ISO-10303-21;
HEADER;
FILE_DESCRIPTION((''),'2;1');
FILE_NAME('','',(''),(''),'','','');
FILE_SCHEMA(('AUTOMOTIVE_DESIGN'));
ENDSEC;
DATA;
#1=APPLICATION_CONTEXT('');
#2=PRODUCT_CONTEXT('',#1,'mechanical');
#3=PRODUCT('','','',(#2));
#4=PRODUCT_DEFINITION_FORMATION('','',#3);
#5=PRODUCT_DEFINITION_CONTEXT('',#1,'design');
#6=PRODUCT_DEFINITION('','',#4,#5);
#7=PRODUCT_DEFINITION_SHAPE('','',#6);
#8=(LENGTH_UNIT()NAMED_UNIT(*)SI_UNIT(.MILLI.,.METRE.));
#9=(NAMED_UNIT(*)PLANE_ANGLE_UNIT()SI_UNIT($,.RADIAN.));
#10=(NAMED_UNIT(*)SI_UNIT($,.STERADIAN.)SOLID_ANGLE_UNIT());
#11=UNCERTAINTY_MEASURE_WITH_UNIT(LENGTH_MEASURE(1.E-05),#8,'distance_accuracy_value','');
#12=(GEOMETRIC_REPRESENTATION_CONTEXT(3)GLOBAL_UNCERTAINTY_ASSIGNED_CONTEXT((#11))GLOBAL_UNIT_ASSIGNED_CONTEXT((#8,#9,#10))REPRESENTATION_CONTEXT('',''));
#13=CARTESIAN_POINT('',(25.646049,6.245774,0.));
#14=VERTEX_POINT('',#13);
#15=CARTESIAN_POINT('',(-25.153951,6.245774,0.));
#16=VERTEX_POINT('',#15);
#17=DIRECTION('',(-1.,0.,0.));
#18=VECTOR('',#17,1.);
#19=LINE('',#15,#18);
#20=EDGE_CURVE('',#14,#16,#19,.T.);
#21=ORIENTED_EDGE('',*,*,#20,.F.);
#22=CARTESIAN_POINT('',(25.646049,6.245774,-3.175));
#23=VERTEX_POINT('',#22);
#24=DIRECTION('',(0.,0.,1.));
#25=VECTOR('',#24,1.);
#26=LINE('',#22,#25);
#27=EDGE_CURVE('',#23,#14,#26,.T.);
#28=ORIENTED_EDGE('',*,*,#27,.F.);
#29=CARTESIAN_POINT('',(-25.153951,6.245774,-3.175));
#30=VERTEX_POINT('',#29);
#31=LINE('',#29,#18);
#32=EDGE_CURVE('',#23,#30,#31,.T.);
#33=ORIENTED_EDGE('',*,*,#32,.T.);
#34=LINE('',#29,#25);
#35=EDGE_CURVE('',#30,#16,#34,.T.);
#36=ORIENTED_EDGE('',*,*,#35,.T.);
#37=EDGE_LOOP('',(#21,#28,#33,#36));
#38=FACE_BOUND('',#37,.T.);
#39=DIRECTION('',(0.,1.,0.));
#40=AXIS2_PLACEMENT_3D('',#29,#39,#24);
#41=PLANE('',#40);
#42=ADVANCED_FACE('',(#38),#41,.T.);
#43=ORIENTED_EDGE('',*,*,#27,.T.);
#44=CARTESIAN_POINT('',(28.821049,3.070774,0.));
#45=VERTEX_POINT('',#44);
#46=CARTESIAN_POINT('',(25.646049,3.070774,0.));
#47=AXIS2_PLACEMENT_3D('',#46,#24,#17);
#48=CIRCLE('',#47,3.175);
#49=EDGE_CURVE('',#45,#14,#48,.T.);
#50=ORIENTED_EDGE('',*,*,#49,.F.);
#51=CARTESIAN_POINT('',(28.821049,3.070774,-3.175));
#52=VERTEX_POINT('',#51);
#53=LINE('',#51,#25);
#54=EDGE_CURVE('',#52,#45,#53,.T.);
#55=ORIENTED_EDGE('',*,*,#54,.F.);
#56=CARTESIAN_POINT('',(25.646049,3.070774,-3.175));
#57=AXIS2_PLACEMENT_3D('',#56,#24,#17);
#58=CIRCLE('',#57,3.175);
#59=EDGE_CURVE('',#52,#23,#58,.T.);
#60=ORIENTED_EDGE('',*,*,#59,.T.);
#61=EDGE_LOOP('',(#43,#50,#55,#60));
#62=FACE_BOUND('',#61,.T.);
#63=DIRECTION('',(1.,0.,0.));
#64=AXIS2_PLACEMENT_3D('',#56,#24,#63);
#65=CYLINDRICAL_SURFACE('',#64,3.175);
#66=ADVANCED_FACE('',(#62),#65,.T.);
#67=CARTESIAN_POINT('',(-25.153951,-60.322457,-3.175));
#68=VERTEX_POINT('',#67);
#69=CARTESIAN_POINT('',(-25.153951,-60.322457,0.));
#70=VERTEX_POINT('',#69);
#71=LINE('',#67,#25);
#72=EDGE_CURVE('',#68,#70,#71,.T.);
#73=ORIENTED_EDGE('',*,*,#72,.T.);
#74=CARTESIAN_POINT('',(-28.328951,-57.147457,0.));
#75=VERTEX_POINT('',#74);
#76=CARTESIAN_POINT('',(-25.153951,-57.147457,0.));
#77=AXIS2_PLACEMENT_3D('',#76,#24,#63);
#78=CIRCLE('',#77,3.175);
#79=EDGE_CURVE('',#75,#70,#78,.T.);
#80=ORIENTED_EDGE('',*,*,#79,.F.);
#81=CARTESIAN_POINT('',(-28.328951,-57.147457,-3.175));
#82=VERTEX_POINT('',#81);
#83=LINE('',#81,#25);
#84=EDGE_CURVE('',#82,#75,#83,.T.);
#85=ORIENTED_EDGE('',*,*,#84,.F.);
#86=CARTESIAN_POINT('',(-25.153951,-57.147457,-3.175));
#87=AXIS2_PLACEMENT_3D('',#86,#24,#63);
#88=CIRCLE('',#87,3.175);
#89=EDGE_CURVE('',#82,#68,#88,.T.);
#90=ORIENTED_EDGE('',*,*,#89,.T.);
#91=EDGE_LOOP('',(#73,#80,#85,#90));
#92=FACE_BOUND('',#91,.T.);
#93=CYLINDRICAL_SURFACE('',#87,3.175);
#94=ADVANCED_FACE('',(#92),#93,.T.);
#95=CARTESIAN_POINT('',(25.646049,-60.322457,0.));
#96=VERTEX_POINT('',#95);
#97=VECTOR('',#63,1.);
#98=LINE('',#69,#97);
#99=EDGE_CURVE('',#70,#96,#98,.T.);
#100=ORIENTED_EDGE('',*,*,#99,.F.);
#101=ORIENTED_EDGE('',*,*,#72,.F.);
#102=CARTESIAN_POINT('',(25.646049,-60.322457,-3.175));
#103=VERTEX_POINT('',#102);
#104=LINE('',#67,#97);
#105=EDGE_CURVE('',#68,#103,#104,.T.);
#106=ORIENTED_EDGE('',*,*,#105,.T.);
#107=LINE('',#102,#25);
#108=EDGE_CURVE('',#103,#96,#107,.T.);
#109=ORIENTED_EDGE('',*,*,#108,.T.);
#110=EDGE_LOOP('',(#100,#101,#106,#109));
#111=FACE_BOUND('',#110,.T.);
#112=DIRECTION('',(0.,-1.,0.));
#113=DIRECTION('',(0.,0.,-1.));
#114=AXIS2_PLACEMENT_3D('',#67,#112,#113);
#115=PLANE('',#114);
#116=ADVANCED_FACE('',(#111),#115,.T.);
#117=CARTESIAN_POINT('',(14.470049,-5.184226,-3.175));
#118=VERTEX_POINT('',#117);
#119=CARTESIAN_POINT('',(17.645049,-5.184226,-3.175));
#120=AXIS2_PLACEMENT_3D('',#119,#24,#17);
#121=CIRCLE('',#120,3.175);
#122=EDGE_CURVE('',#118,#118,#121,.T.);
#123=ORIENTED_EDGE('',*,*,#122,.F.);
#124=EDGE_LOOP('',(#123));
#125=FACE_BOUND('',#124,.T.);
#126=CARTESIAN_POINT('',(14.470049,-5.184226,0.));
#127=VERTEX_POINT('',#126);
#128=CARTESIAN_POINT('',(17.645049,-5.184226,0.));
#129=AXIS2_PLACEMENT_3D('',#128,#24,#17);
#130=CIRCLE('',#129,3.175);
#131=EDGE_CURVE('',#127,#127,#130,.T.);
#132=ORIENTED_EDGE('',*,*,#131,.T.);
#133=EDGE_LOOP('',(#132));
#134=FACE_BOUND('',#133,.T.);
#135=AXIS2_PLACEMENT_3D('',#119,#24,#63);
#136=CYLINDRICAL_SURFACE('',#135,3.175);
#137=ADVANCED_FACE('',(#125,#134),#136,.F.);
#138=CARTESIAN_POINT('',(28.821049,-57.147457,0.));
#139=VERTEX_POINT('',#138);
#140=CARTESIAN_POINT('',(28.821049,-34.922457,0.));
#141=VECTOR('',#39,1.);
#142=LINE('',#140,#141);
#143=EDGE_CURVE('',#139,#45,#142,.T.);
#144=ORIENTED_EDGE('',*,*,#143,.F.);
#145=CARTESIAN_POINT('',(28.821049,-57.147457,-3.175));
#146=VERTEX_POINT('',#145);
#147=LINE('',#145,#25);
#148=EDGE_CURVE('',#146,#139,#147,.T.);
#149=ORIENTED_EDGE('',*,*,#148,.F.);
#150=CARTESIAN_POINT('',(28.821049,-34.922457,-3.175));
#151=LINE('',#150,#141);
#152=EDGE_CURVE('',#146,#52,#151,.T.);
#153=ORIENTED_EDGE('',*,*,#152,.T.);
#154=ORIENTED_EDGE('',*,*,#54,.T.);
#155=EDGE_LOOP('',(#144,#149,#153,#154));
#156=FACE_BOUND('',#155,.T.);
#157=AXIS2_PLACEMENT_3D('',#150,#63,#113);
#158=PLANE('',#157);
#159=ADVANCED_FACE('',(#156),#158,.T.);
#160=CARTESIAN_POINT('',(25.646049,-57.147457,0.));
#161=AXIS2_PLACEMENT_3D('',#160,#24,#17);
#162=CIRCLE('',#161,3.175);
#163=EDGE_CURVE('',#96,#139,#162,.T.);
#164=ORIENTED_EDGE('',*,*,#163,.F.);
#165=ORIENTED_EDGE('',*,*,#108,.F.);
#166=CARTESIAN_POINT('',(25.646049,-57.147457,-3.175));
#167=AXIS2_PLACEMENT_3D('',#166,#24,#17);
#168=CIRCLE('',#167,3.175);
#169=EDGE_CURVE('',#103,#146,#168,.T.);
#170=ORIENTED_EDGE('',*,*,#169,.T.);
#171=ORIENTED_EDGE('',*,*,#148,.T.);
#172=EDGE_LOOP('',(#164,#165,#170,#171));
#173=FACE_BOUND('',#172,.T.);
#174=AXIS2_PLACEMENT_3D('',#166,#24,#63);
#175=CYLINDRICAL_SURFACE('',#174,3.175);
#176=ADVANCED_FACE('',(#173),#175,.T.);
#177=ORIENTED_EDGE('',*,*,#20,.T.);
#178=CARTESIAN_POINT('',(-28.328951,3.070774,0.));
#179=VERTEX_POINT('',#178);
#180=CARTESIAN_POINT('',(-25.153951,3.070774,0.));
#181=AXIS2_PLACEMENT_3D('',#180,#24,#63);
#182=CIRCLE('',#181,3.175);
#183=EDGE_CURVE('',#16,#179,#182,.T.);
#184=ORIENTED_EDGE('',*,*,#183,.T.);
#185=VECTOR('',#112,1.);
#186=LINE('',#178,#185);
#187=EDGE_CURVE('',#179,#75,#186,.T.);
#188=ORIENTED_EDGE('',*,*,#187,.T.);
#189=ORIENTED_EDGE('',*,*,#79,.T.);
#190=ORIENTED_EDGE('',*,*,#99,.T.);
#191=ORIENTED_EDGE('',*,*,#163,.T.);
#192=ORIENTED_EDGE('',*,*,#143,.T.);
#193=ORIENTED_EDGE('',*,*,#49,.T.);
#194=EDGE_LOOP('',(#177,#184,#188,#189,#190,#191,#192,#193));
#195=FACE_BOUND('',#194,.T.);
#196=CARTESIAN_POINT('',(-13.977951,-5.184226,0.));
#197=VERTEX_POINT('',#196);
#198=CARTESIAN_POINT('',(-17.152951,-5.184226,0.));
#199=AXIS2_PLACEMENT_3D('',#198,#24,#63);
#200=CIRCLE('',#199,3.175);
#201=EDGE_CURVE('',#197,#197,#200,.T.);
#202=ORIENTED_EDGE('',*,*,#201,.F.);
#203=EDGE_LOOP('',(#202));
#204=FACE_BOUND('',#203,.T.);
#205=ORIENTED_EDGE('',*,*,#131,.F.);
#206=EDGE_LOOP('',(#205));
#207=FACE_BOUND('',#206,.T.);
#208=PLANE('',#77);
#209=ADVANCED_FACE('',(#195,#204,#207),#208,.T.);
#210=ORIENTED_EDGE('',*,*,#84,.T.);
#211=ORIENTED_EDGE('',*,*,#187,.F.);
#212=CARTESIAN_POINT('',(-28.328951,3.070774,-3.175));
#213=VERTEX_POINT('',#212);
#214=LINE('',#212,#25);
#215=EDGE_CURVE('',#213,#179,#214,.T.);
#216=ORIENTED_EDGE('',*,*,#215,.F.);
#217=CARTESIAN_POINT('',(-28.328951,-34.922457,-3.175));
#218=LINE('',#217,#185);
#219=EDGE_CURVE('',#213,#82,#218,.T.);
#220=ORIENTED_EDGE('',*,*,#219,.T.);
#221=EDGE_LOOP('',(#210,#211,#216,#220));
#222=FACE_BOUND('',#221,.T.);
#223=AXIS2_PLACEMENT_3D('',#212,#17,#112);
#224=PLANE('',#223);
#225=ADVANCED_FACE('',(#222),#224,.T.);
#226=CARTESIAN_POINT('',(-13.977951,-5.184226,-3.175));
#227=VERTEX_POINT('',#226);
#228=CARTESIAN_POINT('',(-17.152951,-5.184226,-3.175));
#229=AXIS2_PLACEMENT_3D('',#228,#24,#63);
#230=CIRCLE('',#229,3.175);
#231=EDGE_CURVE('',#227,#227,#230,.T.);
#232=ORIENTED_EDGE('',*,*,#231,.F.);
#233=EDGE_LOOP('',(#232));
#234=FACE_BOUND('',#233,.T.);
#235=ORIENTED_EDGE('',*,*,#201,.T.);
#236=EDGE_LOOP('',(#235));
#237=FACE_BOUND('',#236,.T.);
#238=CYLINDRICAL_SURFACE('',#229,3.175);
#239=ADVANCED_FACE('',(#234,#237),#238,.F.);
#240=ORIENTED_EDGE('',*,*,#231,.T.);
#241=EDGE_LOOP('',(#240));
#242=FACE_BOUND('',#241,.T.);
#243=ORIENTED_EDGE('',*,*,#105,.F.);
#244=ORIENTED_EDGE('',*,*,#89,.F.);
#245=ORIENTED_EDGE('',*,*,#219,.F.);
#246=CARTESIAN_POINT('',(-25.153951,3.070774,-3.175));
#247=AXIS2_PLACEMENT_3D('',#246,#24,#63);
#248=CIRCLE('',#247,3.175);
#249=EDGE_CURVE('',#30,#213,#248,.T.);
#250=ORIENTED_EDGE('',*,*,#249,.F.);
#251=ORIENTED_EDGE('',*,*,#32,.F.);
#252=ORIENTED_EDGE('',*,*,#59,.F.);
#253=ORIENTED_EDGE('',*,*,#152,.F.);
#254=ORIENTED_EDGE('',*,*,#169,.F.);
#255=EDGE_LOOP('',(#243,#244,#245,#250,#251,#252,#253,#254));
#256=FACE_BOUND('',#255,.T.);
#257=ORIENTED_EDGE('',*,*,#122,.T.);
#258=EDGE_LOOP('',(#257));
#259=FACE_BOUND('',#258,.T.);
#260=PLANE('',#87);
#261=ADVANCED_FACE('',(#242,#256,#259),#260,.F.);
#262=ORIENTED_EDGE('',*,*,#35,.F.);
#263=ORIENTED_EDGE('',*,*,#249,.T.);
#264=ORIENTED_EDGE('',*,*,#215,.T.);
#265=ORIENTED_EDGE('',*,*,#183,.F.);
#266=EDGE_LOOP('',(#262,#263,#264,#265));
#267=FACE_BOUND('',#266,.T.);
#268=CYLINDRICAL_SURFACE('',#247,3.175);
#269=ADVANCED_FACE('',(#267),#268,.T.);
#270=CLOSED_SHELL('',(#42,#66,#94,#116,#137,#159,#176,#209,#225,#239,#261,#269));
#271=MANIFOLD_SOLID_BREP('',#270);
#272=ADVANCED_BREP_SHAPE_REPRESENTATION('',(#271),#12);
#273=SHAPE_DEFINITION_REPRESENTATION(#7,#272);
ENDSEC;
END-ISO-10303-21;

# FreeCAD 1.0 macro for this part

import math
import FreeCAD as App
import Part
import Sketcher

V = App.Vector
Q = App.Units.Quantity

doc = App.newDocument("Part")
params = doc.addObject("Spreadsheet::Sheet", "Params")
for row, (alias, value) in enumerate([
    ("sketch1_width", "2 in"),
    ("sketch1_radius", "0.125 in"),
    ("pad1_length", "0.125 in"),
    ("sketch2_diameter", "0.25 in"),
], start=1):
    params.set(f"A{row}", alias)
    params.set(f"B{row}", "=" + value)
    params.setAlias(f"B{row}", alias)

body = doc.addObject("PartDesign::Body", "Body")

# Sketch on XY plane
sketch1 = doc.addObject("Sketcher::SketchObject", "Sketch")
body.addObject(sketch1)
sketch1.AttachmentSupport = (doc.XY_Plane, [""])
sketch1.MapMode = "FlatFace"
sketch1.addGeometry([
    Part.LineSegment(V(-28.328951, 3.070774, 0), V(-28.328951, -57.147457, 0)),  # 0
    Part.ArcOfCircle(Part.Circle(V(-25.153951, -57.147457, 0), V(0, 0, 1), 3.175), math.radians(-180), math.radians(-90)),  # 1
    Part.LineSegment(V(-25.153951, -60.322457, 0), V(25.646049, -60.322457, 0)),  # 2
    Part.ArcOfCircle(Part.Circle(V(25.646049, -57.147457, 0), V(0, 0, 1), 3.175), math.radians(-90), math.radians(0)),  # 3
    Part.LineSegment(V(28.821049, -57.147457, 0), V(28.821049, 3.070774, 0)),  # 4
    Part.ArcOfCircle(Part.Circle(V(25.646049, 3.070774, 0), V(0, 0, 1), 3.175), math.radians(0), math.radians(90)),  # 5
    Part.LineSegment(V(25.646049, 6.245774, 0), V(-25.153951, 6.245774, 0)),  # 6
    Part.ArcOfCircle(Part.Circle(V(-25.153951, 3.070774, 0), V(0, 0, 1), 3.175), math.radians(90), math.radians(180)),  # 7
], False)
sketch1.addConstraint([
    Sketcher.Constraint("Tangent", 0, 2, 1, 1),
    Sketcher.Constraint("Tangent", 1, 2, 2, 1),
    Sketcher.Constraint("Tangent", 2, 2, 3, 1),
    Sketcher.Constraint("Tangent", 3, 2, 4, 1),
    Sketcher.Constraint("Tangent", 4, 2, 5, 1),
    Sketcher.Constraint("Tangent", 5, 2, 6, 1),
    Sketcher.Constraint("Tangent", 6, 2, 7, 1),
    Sketcher.Constraint("Tangent", 7, 2, 0, 1),
    Sketcher.Constraint("Vertical", 0),
    Sketcher.Constraint("Horizontal", 2),
    Sketcher.Constraint("Vertical", 4),
    Sketcher.Constraint("Horizontal", 6),
    Sketcher.Constraint("Equal", 1, 3),
    Sketcher.Constraint("Equal", 3, 5),
    Sketcher.Constraint("Equal", 5, 7),
    Sketcher.Constraint("DistanceX", 2, 1, 2, 2, Q("2 in")),
    Sketcher.Constraint("Radius", 1, Q("0.125 in")),
    Sketcher.Constraint("DistanceY", 1, 3, -1, 1, Q("2.2498999 in")),
    Sketcher.Constraint("DistanceY", 0, 2, 0, 1, 60.21823),
    Sketcher.Constraint("DistanceX", 1, 3, -1, 1, 25.153951),
])
sketch1.setExpression("Constraints[15]", "Params.sketch1_width")
sketch1.setExpression("Constraints[16]", "Params.sketch1_radius")
pad1 = doc.addObject("PartDesign::Pad", "Pad")
body.addObject(pad1)
pad1.Profile = sketch1
pad1.setExpression("Length", "Params.pad1_length")
pad1.Reversed = True

# Sketch on XY plane
sketch2 = doc.addObject("Sketcher::SketchObject", "Sketch001")
body.addObject(sketch2)
sketch2.AttachmentSupport = (doc.XY_Plane, [""])
sketch2.MapMode = "FlatFace"
sketch2.addGeometry([
    Part.Circle(V(-17.152951, -5.184226, 0), V(0, 0, 1), 3.175),
    Part.Circle(V(17.645049, -5.184226, 0), V(0, 0, 1), 3.175),
], False)
sketch2.addConstraint([
    Sketcher.Constraint("Equal", 0, 1),
    Sketcher.Constraint("Horizontal", 0, 3, 1, 3),
    Sketcher.Constraint("Diameter", 0, Q("0.25 in")),
    Sketcher.Constraint("DistanceX", 0, 3, 1, 3, Q("1.37 in")),
    Sketcher.Constraint("DistanceX", 0, 3, -1, 1, 17.152951),
    Sketcher.Constraint("DistanceY", 0, 3, -1, 1, 5.184226),
])
sketch2.setExpression("Constraints[2]", "Params.sketch2_diameter")
pocket1 = doc.addObject("PartDesign::Pocket", "Pocket")
body.addObject(pocket1)
pocket1.Profile = sketch2
pocket1.Type = "ThroughAll"

doc.recompute()
